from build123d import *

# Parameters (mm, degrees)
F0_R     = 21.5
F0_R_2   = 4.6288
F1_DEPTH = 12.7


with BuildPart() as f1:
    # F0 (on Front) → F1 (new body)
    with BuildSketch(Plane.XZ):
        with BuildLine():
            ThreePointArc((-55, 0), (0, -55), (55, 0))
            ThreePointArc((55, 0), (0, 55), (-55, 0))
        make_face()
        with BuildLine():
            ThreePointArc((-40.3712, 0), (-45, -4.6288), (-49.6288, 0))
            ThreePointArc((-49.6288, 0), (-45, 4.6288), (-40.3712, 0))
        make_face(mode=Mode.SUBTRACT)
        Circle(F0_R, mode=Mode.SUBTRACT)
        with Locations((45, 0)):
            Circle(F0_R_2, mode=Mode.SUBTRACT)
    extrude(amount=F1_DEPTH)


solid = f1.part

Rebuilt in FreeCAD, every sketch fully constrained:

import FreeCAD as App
import Part
import Sketcher

doc = App.newDocument("Part")
body = doc.addObject("PartDesign::Body", "Body")

sketch1 = body.newObject("Sketcher::SketchObject", "Sketch")
sketch1.AttachmentSupport = (doc.getObject("XZ_Plane"), [""])
sketch1.MapMode = "FlatFace"
sketch1.addGeometry(Part.Circle(App.Vector(0, 0, 0), App.Vector(0, 0, 1), 55), False)
sketch1.addGeometry(Part.Circle(App.Vector(-45, 0, 0), App.Vector(0, 0, 1), 4.6288), False)
sketch1.addGeometry(Part.Circle(App.Vector(0, 0, 0), App.Vector(0, 0, 1), 21.5), False)
sketch1.addGeometry(Part.Circle(App.Vector(45, 0, 0), App.Vector(0, 0, 1), 4.6288), False)
sketch1.addConstraint(Sketcher.Constraint("Coincident", 0, 3, -1, 1))
sketch1.addConstraint(Sketcher.Constraint("Coincident", 2, 3, -1, 1))
sketch1.addConstraint(Sketcher.Constraint("Equal", 1, 3))
sketch1.addConstraint(Sketcher.Constraint("Symmetric", 1, 3, 3, 3, -1, 1))
sketch1.addConstraint(Sketcher.Constraint("PointOnObject", 1, 3, -1))
sketch1.addConstraint(Sketcher.Constraint("Diameter", 0, 110.0))
sketch1.addConstraint(Sketcher.Constraint("Diameter", 2, 43.0))
sketch1.addConstraint(Sketcher.Constraint("DistanceX", 1, 3, -1, 1, 45.0))
sketch1.addConstraint(Sketcher.Constraint("Diameter", 1, 9.2576))
pad1 = body.newObject("PartDesign::Pad", "Pad")
pad1.Profile = sketch1
pad1.Length = 12.7

doc.recompute()
